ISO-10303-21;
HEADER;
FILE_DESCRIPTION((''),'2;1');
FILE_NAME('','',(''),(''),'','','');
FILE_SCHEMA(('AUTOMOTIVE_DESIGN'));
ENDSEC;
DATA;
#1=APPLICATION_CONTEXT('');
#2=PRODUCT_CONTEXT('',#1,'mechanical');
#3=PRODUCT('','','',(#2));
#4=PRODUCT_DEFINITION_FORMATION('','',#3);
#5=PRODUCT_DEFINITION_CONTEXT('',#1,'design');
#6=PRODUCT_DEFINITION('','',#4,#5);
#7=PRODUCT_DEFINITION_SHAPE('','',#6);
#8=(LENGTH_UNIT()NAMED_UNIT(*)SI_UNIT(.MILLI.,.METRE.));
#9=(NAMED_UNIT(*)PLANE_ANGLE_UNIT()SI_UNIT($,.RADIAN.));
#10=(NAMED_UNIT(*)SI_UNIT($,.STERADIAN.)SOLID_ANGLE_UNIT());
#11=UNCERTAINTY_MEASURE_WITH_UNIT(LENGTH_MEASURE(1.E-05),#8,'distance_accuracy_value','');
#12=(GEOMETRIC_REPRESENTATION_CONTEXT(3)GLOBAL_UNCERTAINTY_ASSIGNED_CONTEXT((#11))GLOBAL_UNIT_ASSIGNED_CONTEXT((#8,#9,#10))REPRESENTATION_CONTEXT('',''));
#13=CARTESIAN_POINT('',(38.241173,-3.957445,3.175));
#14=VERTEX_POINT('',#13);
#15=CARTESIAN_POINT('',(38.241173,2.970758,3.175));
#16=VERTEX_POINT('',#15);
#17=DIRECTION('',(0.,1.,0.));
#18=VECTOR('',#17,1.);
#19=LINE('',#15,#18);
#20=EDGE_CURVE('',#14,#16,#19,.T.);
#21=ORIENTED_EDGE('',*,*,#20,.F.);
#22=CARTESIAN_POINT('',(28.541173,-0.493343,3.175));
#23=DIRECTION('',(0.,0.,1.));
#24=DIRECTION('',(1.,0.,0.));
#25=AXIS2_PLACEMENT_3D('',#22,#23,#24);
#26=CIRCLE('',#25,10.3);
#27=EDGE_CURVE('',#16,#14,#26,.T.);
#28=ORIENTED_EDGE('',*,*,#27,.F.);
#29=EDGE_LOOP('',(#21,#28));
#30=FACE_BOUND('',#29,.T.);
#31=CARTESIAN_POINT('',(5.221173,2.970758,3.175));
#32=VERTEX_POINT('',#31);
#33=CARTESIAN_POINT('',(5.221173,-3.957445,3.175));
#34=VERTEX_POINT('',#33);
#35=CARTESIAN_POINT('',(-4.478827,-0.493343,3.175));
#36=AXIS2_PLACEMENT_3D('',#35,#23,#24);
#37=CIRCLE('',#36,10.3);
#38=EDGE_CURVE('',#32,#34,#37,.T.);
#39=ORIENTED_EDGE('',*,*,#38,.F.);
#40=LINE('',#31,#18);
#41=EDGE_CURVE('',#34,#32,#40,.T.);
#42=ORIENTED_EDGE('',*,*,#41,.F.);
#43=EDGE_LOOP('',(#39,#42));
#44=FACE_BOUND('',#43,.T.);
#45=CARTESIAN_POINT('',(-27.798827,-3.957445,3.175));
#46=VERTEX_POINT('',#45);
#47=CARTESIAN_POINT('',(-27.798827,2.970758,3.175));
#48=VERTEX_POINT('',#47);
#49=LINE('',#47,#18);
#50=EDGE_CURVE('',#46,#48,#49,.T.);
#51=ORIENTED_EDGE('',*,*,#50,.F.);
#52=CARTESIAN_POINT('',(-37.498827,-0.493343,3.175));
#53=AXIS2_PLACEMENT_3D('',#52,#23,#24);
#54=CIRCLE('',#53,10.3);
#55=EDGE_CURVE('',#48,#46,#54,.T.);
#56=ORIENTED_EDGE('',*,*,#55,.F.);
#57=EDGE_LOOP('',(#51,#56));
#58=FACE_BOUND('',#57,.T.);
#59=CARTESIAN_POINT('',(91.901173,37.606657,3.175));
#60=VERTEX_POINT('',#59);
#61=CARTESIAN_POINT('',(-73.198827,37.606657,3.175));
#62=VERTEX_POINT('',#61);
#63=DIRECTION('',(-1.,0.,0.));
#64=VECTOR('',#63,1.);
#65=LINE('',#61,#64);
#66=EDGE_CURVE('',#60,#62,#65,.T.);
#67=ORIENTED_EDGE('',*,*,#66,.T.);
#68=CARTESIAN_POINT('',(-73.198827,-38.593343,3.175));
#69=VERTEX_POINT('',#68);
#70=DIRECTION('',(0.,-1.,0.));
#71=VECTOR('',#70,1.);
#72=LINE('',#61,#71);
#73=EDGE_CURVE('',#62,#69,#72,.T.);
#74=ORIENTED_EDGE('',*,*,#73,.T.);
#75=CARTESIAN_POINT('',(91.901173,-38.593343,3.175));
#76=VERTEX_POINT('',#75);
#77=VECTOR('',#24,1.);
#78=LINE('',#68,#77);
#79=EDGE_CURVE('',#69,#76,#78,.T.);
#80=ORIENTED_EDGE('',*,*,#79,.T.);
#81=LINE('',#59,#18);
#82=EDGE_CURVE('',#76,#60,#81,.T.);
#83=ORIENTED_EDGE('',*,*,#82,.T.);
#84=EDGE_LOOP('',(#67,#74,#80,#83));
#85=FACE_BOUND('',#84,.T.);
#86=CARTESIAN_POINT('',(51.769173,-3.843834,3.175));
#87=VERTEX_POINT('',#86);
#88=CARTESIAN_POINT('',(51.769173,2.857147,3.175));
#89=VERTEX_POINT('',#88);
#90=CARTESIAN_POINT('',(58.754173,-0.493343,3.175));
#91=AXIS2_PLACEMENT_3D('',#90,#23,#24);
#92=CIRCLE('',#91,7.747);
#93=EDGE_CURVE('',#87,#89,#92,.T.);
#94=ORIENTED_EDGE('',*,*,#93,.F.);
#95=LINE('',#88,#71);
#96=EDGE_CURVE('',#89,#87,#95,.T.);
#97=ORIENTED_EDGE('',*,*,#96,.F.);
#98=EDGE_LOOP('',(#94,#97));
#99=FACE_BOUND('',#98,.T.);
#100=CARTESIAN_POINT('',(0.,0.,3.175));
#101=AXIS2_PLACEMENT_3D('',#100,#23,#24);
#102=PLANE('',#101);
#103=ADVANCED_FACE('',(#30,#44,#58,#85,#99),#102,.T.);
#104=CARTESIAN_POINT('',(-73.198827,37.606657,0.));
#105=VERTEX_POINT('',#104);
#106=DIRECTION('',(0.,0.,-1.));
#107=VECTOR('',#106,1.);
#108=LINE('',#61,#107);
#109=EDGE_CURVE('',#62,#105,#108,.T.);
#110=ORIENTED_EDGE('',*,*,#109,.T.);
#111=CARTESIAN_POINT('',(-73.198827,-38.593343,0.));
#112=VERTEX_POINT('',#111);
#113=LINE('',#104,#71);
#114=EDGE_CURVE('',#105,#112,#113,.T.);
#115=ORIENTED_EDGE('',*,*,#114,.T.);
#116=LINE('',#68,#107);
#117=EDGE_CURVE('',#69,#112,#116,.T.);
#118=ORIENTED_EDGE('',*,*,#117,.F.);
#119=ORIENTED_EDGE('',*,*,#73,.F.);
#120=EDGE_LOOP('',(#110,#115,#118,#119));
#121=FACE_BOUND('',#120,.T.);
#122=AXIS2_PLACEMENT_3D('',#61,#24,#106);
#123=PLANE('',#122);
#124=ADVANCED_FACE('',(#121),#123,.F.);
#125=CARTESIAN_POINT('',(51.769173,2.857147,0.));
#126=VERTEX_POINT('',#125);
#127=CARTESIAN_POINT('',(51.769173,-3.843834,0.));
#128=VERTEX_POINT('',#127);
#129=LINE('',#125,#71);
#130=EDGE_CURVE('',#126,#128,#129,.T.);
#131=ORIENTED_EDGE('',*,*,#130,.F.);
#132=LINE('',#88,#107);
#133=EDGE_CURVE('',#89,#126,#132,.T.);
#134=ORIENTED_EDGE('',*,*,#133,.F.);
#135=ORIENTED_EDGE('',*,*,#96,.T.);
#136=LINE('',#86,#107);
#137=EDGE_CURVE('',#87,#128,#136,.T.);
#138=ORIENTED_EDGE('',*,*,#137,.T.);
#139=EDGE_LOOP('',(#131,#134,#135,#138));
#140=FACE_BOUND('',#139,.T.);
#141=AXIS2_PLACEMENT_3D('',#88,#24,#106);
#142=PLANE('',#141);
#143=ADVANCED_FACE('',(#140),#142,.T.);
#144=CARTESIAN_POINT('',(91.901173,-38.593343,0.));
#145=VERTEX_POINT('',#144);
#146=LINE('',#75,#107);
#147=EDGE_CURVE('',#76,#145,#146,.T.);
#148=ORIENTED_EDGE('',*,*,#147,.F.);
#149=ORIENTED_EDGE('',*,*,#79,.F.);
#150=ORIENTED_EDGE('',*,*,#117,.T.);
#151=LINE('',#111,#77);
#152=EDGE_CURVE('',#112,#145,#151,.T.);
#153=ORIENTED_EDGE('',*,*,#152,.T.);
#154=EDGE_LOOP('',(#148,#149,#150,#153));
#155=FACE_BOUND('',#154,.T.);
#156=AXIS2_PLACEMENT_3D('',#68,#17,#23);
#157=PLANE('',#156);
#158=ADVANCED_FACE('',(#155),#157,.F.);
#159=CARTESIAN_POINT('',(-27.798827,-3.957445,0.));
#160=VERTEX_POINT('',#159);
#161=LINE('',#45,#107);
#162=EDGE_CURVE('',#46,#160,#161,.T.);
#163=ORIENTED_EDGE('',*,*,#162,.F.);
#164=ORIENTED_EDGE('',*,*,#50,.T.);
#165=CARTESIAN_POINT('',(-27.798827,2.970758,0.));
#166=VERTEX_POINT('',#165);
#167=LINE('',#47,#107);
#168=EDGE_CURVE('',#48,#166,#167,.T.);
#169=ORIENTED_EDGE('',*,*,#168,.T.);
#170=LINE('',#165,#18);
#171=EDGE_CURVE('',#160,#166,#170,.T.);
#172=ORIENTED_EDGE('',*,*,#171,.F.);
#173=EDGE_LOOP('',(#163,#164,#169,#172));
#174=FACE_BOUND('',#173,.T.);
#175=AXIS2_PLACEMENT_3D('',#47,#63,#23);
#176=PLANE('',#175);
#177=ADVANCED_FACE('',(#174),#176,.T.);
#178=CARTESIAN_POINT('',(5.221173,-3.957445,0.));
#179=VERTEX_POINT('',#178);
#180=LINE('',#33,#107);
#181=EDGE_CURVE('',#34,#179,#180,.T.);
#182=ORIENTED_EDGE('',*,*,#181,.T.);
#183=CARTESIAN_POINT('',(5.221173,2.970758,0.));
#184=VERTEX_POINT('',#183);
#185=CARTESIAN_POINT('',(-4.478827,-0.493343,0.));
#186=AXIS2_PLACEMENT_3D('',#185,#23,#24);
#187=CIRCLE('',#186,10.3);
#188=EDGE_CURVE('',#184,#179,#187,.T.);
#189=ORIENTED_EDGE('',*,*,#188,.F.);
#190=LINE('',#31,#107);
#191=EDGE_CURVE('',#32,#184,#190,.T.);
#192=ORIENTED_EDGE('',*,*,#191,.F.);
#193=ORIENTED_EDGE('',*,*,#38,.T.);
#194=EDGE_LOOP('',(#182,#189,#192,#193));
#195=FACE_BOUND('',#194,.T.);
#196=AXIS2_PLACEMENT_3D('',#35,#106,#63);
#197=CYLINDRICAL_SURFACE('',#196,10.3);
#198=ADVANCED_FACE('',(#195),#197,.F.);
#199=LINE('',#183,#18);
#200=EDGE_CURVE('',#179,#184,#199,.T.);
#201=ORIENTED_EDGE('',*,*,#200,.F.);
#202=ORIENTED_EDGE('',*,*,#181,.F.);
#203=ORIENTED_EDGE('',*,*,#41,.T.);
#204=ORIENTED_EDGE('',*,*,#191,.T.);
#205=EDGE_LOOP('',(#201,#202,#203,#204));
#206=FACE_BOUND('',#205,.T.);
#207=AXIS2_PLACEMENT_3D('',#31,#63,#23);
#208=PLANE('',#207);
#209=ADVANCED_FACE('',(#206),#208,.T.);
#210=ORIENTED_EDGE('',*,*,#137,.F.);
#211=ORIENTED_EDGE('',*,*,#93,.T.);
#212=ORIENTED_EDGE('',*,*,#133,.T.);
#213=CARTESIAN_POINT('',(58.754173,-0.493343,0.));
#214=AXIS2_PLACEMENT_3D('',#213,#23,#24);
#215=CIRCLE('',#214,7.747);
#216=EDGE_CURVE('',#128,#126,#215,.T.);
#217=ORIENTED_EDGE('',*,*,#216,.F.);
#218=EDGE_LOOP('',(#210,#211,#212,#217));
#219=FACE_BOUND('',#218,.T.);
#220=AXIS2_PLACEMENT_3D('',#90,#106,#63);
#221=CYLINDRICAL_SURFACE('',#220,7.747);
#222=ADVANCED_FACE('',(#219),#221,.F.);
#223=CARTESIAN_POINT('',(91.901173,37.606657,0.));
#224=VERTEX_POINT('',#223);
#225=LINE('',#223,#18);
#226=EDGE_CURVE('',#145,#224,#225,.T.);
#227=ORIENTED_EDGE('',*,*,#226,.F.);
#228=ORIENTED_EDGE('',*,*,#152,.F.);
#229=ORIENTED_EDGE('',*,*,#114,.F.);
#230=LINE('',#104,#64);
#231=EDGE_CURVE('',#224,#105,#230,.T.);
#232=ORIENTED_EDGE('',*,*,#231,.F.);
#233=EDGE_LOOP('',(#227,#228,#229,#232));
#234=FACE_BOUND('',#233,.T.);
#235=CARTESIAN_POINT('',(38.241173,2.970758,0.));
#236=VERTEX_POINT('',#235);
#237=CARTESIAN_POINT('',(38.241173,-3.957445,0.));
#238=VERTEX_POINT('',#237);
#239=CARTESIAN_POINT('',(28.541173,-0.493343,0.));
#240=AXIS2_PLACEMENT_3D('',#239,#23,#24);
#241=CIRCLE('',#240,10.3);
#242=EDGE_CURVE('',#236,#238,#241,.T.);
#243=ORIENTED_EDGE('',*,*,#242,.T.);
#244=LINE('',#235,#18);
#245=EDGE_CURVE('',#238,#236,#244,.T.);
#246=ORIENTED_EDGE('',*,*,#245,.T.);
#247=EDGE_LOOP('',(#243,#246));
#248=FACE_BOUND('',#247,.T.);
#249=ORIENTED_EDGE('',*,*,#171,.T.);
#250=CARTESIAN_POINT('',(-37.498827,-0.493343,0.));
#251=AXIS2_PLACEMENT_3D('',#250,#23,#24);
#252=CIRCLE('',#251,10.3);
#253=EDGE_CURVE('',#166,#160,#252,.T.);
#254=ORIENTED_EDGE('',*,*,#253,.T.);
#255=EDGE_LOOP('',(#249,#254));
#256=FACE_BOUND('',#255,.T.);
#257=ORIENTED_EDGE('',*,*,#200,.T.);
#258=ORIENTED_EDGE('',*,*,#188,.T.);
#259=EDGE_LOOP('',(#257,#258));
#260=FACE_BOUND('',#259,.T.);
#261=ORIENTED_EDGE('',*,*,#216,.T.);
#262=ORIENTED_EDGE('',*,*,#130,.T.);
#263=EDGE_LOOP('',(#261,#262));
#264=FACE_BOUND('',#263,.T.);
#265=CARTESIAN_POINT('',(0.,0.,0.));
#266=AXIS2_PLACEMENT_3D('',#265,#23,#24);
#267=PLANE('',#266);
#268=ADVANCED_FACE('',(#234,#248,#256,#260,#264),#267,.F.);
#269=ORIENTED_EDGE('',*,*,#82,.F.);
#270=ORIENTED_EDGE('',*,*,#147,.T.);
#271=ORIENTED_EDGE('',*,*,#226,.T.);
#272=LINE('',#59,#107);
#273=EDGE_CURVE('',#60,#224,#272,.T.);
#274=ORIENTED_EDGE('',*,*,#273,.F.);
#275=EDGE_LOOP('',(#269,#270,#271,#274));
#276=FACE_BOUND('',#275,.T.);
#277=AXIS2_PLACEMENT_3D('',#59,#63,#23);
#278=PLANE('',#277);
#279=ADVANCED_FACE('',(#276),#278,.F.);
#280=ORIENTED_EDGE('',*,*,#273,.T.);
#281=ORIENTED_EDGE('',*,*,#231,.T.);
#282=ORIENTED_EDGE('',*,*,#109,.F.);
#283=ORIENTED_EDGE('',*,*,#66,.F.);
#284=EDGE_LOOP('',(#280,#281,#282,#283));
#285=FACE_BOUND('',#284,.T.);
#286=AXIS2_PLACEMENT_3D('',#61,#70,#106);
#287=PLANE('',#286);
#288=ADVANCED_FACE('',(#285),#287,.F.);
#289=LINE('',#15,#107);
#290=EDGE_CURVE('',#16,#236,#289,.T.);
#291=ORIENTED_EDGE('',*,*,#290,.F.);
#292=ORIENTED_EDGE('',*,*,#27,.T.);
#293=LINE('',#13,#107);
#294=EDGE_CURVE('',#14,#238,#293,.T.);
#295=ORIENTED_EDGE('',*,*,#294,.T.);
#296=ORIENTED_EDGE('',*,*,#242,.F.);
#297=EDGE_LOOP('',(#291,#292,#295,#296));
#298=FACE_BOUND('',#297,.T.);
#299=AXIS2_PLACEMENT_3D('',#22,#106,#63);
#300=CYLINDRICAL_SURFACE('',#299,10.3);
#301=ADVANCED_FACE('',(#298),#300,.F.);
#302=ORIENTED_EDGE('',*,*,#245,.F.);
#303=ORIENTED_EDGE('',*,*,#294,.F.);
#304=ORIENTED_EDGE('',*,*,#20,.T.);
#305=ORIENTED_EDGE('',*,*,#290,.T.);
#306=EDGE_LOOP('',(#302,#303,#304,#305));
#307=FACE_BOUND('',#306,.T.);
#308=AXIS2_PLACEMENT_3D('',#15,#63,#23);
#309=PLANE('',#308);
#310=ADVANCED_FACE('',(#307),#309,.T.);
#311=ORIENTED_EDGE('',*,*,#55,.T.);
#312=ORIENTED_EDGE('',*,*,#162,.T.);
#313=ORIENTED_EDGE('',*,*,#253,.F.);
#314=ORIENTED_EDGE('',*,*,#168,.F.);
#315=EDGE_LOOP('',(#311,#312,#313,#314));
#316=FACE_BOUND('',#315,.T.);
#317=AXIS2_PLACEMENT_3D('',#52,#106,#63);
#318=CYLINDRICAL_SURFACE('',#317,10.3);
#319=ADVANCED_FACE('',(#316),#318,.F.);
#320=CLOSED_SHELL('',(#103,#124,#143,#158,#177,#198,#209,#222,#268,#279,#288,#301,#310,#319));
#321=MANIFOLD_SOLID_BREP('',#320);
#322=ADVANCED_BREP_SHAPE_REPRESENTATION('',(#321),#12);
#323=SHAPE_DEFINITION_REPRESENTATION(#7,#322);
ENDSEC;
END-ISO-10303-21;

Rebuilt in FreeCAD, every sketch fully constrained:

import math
import FreeCAD as App
import Part
import Sketcher

V = App.Vector
Q = App.Units.Quantity


def add_polygon(sketch, points):
    """Adds a closed chain of lines whose ends are joined by coincident constraints."""
    first, n = sketch.GeometryCount, len(points)
    for a, b in zip(points, points[1:] + points[:1]):
        sketch.addGeometry(Part.LineSegment(App.Vector(*a, 0), App.Vector(*b, 0)), False)
    for i in range(n):
        sketch.addConstraint(Sketcher.Constraint("Coincident", first + i, 2, first + (i + 1) % n, 1))

doc = App.newDocument("Part")
body = doc.addObject("PartDesign::Body", "Body")

# Sketch on XY plane
sketch1 = doc.addObject("Sketcher::SketchObject", "Sketch")
body.addObject(sketch1)
sketch1.AttachmentSupport = (doc.XY_Plane, [""])
sketch1.MapMode = "FlatFace"
add_polygon(sketch1, [(-73, 38), (-73, -39), (92, -39), (92, 38)])  # lines 0-3
sketch1.addGeometry(Part.ArcOfCircle(Part.Circle(V(-37, 0, 0), V(0, 0, 1), 10), math.radians(20), math.radians(340)), False)  # 4
sketch1.addGeometry(Part.LineSegment(V(-28, 3, 0), V(-28, -4, 0)), False)  # 5
sketch1.addGeometry(Part.ArcOfCircle(Part.Circle(V(-4, 0, 0), V(0, 0, 1), 10), math.radians(20), math.radians(340)), False)  # 6
sketch1.addGeometry(Part.LineSegment(V(5, 3, 0), V(5, -4, 0)), False)  # 7
sketch1.addGeometry(Part.ArcOfCircle(Part.Circle(V(29, 0, 0), V(0, 0, 1), 10), math.radians(20), math.radians(340)), False)  # 8
sketch1.addGeometry(Part.LineSegment(V(38, 3, 0), V(38, -4, 0)), False)  # 9
sketch1.addGeometry(Part.LineSegment(V(52, -4, 0), V(52, 3, 0)), False)  # 10
sketch1.addGeometry(Part.ArcOfCircle(Part.Circle(V(59, 0, 0), V(0, 0, 1), 8), math.radians(-154), math.radians(154)), False)  # 11
sketch1.addConstraint([
    Sketcher.Constraint("Coincident", 4, 1, 5, 1),
    Sketcher.Constraint("Coincident", 5, 2, 4, 2),
    Sketcher.Constraint("Coincident", 6, 1, 7, 1),
    Sketcher.Constraint("Coincident", 7, 2, 6, 2),
    Sketcher.Constraint("Coincident", 8, 1, 9, 1),
    Sketcher.Constraint("Coincident", 9, 2, 8, 2),
    Sketcher.Constraint("Coincident", 10, 1, 11, 1),
    Sketcher.Constraint("Coincident", 11, 2, 10, 2),
    Sketcher.Constraint("Vertical", 0),
    Sketcher.Constraint("Horizontal", 1),
    Sketcher.Constraint("Vertical", 2),
    Sketcher.Constraint("Horizontal", 3),
    Sketcher.Constraint("Vertical", 5),
    Sketcher.Constraint("Vertical", 7),
    Sketcher.Constraint("Vertical", 9),
    Sketcher.Constraint("Vertical", 10),
    Sketcher.Constraint("Equal", 4, 6),
    Sketcher.Constraint("Equal", 6, 8),
    Sketcher.Constraint("Horizontal", 4, 3, 6, 3),
    Sketcher.Constraint("Horizontal", 6, 3, 8, 3),
    Sketcher.Constraint("Horizontal", 8, 3, 11, 3),
    Sketcher.Constraint("Horizontal", 4, 1, 6, 1),
    Sketcher.Constraint("Horizontal", 6, 1, 8, 1),
    Sketcher.Constraint("DistanceY", 0, 2, 0, 1, Q("3 in")),
    Sketcher.Constraint("DistanceX", 1, 1, 1, 2, Q("6.5 in")),
    Sketcher.Constraint("Radius", 11, Q("0.305 in")),
    Sketcher.Constraint("DistanceX", 4, 3, 6, 3, Q("1.3 in")),
    Sketcher.Constraint("DistanceX", 6, 3, 8, 3, Q("1.3 in")),
    Sketcher.Constraint("DistanceY", 0, 2, 4, 3, Q("1.5 in")),
    Sketcher.Constraint("Radius", 4, Q("10.3 mm")),
    Sketcher.Constraint("DistanceX", 0, 2, 11, 3, Q("5.195 in")),
    Sketcher.Constraint("DistanceX", 10, 1, 11, 3, Q("0.275 in")),
    Sketcher.Constraint("DistanceX", 8, 3, 11, 3, Q("30.213 mm")),
    Sketcher.Constraint("DistanceX", 4, 3, 4, 1, Q("9.7 mm")),
    Sketcher.Constraint("DistanceY", -1, 1, 4, 1, Q("2.970758 mm")),
    Sketcher.Constraint("DistanceX", 4, 3, -1, 1, Q("37.498827 mm")),
])
pad1 = doc.addObject("PartDesign::Pad", "Pad")
body.addObject(pad1)
pad1.Profile = sketch1
pad1.Length = Q("0.125 in")

doc.recompute()
